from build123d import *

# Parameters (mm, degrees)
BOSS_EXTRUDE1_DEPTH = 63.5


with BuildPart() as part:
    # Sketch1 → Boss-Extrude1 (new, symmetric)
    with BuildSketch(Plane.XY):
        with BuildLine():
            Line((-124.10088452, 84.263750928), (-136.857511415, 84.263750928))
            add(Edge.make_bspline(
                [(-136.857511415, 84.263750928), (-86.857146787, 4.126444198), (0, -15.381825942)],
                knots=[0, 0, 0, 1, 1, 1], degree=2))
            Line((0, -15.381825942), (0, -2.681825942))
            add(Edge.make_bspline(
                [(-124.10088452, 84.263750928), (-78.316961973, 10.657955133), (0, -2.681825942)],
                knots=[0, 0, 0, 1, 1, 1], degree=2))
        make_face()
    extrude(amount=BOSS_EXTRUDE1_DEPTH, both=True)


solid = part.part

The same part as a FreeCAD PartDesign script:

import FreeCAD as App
import Part
import Sketcher
Q = App.Units.Quantity

doc = App.newDocument("Part")
body = doc.addObject("PartDesign::Body", "Body")

# Sketch on XY plane
sketch1 = doc.addObject("Sketcher::SketchObject", "Sketch")
body.addObject(sketch1)
sketch1.AttachmentSupport = (doc.XY_Plane, [""])
sketch1.MapMode = "FlatFace"
sketch1.addGeometry([
    Part.LineSegment(App.Vector(-124.100885, 84.263751, 0), App.Vector(-136.857511, 84.263751, 0)),
    Part.BSplineCurve([App.Vector(-136.857511, 84.263751, 0), App.Vector(-86.857147, 4.126444, 0), App.Vector(0, -15.381826, 0)], [3, 3], [0, 1], False, 2, [1, 1, 1], False),
    Part.LineSegment(App.Vector(0, -15.381826, 0), App.Vector(0, -2.681826, 0)),
    Part.BSplineCurve([App.Vector(-124.100885, 84.263751, 0), App.Vector(-78.316962, 10.657955, 0), App.Vector(0, -2.681826, 0)], [3, 3], [0, 1], False, 2, [1, 1, 1], False),
], False)
sketch1.addConstraint([
    Sketcher.Constraint("Block", 1),
    Sketcher.Constraint("Block", 3),
    Sketcher.Constraint("Coincident", 0, 2, 1, 1),
    Sketcher.Constraint("Coincident", 1, 2, 2, 1),
    Sketcher.Constraint("Coincident", 2, 2, 3, 2),
    Sketcher.Constraint("Coincident", 3, 1, 0, 1),
])
pad1 = doc.addObject("PartDesign::Pad", "Pad")
body.addObject(pad1)
pad1.Profile = sketch1
pad1.Length = Q("5 in")
pad1.Midplane = True

doc.recompute()
